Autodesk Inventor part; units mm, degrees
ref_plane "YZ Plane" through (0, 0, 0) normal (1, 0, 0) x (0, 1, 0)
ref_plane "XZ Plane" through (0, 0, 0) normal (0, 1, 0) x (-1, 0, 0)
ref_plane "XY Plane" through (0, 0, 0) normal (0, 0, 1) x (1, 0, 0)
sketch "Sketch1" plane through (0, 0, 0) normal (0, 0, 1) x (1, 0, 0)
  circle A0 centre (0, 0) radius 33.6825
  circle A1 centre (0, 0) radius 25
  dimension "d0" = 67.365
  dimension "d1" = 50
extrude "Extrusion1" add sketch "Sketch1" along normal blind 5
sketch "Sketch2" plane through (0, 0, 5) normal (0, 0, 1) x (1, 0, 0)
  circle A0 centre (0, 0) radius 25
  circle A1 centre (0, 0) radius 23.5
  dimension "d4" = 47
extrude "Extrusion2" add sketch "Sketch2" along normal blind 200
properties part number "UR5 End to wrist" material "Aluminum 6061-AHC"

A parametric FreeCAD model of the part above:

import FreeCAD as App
import Part
import Sketcher
Q = App.Units.Quantity

doc = App.newDocument("Part")
body = doc.addObject("PartDesign::Body", "Body")
body.AllowCompound = True

# Sketch on XY plane
sketch1 = body.newObject("Sketcher::SketchObject", "Sketch")
sketch1.AttachmentSupport = (doc.getObject("XY_Plane"), [""])
sketch1.MapMode = "FlatFace"
sketch1.addGeometry([
    Part.Circle(App.Vector(0, 0, 0), App.Vector(0, 0, 1), 33.6825),
    Part.Circle(App.Vector(0, 0, 0), App.Vector(0, 0, 1), 25),
], False)
sketch1.addConstraint([
    Sketcher.Constraint("Coincident", 0, 3, -1, 1),
    Sketcher.Constraint("Coincident", 1, 3, -1, 1),
    Sketcher.Constraint("Diameter", 1, Q("50 mm")),
    Sketcher.Constraint("Diameter", 0, Q("67.365 mm")),
])
pad1 = body.newObject("PartDesign::Pad", "Pad")
pad1.Profile = sketch1
pad1.Length = 5

# Sketch on XY plane
sketch2 = body.newObject("Sketcher::SketchObject", "Sketch001")
sketch2.AttachmentSupport = (doc.getObject("XY_Plane"), [""])
sketch2.MapMode = "FlatFace"
sketch2.AttachmentOffset = App.Placement(App.Vector(0, 0, 5), App.Rotation())
sketch2.addGeometry([
    Part.Circle(App.Vector(0, 0, 0), App.Vector(0, 0, 1), 25),
    Part.Circle(App.Vector(0, 0, 0), App.Vector(0, 0, 1), 23.5),
], False)
sketch2.addConstraint([
    Sketcher.Constraint("Coincident", 0, 3, -1, 1),
    Sketcher.Constraint("Coincident", 1, 3, -1, 1),
    Sketcher.Constraint("Diameter", 1, Q("47 mm")),
    Sketcher.Constraint("Diameter", 0, Q("50 mm")),
])
pad2 = body.newObject("PartDesign::Pad", "Pad001")
pad2.Profile = sketch2
pad2.Length = 200

doc.recompute()
